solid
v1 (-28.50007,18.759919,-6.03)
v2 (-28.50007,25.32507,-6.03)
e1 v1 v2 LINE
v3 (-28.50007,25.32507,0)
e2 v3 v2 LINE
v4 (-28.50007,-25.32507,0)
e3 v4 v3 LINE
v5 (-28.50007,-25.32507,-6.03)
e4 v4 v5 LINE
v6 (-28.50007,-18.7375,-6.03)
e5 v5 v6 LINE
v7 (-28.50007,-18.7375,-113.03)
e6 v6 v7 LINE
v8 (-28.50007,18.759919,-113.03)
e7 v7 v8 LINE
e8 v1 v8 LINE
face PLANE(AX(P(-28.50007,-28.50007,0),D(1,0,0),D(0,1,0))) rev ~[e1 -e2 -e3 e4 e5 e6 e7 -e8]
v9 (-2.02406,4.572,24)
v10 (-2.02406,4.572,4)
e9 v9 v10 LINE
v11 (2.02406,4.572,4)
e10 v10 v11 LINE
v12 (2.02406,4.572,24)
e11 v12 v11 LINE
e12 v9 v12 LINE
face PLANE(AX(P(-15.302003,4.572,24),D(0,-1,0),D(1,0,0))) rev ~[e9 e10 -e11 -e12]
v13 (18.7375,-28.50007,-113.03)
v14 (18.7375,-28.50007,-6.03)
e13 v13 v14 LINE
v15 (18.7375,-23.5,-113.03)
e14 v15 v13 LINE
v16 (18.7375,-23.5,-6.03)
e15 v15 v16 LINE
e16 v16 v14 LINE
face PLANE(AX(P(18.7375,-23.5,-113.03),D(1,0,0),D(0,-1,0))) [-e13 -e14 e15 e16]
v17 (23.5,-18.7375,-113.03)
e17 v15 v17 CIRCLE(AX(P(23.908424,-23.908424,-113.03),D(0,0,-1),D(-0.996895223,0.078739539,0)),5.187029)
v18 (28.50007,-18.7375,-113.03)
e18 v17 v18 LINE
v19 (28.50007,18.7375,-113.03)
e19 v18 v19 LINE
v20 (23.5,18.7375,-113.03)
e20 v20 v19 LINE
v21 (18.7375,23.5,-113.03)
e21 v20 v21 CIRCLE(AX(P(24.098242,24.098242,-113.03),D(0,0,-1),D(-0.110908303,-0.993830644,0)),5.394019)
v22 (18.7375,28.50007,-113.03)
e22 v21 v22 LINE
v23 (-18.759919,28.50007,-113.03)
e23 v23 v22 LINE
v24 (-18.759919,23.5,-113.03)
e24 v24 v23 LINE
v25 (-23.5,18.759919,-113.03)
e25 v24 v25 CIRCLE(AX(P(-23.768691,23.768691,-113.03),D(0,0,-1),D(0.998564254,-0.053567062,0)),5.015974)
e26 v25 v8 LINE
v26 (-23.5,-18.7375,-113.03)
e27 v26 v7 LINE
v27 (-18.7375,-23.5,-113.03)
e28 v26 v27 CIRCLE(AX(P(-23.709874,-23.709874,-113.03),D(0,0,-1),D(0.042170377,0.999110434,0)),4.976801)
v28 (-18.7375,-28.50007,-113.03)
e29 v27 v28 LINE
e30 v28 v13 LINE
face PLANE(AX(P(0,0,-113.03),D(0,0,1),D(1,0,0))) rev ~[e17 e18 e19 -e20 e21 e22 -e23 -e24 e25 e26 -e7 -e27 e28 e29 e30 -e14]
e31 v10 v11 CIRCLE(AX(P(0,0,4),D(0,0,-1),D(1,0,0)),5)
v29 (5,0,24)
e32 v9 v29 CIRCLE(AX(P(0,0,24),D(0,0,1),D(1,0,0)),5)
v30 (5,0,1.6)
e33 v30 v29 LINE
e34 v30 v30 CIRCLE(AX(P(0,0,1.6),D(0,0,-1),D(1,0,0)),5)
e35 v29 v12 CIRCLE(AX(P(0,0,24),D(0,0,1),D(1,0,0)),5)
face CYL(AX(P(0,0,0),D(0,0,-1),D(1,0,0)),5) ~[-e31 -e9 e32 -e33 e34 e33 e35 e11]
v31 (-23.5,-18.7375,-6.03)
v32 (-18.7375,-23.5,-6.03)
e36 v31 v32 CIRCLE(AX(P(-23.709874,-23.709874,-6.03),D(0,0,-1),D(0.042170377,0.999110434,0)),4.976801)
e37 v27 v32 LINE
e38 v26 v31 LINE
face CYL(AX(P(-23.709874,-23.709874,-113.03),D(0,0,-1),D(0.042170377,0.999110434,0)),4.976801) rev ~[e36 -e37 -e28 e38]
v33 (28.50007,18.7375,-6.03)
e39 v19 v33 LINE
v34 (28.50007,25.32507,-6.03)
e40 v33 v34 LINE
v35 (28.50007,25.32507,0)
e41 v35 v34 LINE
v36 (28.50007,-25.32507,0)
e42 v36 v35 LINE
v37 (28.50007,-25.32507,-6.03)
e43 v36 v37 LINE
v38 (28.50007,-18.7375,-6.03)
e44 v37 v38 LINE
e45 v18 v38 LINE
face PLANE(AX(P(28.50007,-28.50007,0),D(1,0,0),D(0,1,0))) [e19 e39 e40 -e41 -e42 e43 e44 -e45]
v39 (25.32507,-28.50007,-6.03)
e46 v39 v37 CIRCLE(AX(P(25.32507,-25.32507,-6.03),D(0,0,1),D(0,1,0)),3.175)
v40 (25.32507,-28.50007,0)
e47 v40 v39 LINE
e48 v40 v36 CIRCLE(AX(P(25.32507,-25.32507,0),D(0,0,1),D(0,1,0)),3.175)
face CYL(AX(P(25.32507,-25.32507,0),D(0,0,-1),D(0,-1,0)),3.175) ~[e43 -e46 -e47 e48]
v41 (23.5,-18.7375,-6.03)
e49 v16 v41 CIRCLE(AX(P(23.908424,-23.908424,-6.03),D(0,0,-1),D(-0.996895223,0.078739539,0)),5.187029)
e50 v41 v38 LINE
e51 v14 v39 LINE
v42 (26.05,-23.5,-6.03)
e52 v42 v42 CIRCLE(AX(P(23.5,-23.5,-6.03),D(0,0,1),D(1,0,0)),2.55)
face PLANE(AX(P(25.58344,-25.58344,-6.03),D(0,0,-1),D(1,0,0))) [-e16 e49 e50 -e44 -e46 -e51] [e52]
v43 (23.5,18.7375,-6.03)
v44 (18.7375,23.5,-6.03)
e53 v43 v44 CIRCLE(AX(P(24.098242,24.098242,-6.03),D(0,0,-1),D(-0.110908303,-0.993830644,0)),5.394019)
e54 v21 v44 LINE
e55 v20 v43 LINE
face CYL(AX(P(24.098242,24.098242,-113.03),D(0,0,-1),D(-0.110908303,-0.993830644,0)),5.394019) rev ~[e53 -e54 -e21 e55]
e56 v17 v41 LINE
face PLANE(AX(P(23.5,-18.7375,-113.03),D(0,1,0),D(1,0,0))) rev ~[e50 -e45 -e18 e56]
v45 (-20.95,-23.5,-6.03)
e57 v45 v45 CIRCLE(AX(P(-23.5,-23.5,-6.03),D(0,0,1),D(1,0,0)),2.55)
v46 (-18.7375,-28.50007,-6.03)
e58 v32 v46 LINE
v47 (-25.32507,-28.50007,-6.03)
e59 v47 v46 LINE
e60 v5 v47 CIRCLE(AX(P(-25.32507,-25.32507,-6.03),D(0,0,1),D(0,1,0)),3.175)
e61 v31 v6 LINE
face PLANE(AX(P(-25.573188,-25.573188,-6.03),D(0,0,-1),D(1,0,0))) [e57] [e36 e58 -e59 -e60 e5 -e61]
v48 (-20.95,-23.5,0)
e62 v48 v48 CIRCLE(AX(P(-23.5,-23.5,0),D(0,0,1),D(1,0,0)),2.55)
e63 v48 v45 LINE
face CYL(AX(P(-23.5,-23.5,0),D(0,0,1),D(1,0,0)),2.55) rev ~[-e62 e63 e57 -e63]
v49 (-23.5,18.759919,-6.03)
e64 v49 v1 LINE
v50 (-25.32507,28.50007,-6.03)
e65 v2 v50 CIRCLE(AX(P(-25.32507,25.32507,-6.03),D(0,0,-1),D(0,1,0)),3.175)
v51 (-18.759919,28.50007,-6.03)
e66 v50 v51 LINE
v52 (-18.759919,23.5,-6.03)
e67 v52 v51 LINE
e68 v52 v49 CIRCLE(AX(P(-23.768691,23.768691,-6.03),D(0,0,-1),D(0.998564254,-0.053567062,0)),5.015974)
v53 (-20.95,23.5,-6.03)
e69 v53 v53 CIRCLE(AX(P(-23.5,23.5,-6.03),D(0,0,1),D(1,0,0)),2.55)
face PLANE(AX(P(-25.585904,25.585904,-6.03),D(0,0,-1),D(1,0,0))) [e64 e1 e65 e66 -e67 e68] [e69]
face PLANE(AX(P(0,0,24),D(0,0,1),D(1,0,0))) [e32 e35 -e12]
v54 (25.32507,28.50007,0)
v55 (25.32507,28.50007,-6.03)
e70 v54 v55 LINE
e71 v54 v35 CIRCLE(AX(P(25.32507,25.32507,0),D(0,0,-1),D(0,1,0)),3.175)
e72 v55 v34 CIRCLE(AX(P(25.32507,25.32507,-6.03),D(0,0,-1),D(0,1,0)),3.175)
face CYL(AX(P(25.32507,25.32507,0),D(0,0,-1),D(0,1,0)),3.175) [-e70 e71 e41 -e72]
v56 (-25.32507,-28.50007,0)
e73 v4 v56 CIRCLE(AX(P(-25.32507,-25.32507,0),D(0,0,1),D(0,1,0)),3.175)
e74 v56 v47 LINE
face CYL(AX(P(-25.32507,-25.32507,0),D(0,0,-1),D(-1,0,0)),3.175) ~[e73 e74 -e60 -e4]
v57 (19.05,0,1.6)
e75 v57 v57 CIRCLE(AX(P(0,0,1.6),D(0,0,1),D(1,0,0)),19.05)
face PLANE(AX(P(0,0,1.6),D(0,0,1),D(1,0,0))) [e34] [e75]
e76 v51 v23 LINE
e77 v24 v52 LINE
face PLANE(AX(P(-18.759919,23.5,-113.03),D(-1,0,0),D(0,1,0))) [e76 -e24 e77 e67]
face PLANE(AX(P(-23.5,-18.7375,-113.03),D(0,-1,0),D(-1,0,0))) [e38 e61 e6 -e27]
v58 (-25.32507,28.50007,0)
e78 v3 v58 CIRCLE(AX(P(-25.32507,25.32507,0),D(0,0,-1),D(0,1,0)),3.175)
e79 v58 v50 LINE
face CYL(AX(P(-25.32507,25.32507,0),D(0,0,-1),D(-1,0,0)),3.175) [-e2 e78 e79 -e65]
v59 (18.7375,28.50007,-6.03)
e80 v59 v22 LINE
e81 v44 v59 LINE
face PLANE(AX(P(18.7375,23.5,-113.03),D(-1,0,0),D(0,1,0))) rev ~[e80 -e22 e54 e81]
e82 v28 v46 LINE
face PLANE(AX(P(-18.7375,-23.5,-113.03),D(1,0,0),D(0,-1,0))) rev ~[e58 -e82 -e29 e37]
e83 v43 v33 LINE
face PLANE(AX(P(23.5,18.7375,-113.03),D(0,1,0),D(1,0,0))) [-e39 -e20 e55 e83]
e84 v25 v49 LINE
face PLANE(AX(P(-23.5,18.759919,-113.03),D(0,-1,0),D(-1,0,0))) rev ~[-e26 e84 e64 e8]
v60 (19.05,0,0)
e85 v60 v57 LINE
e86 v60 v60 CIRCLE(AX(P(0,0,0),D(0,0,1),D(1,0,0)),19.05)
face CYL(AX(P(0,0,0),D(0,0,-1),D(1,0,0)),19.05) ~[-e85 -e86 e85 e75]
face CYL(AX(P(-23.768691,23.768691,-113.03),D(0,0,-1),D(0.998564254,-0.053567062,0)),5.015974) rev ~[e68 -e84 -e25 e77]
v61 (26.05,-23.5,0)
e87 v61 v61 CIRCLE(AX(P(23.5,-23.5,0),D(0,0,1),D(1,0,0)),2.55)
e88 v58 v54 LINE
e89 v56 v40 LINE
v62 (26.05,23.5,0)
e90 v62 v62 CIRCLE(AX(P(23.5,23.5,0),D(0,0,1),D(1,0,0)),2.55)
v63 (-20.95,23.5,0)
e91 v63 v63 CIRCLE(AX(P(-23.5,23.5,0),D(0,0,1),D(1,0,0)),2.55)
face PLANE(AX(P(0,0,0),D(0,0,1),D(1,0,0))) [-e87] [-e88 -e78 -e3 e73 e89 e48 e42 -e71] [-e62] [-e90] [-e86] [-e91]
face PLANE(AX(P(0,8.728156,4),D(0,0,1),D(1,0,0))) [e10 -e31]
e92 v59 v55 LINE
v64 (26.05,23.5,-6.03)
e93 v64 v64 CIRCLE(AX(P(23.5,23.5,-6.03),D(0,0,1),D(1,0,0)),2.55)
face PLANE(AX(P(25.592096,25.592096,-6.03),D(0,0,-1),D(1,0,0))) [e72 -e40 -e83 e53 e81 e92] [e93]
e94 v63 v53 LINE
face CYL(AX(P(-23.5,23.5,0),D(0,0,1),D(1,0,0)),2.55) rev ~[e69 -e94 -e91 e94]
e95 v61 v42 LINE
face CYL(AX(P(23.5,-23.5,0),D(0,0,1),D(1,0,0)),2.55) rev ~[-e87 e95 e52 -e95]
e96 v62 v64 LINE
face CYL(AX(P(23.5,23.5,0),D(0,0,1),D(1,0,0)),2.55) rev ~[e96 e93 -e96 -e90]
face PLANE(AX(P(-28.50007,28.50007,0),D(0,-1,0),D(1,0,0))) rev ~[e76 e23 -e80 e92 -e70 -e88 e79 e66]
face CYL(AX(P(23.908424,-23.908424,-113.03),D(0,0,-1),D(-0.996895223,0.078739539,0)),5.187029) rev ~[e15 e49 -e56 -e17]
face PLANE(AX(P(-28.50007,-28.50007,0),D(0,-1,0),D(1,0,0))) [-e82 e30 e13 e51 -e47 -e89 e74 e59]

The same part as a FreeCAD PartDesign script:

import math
import FreeCAD as App
import Part
import Sketcher


def edges_at(feature, points):
    """Names of the edges that pass closest to the given points."""
    edges = feature.Shape.Edges
    near = lambda p: min(range(len(edges)), key=lambda i: edges[i].distToShape(Part.Vertex(*p))[0])
    return sorted({f"Edge{near(p) + 1}" for p in points})


def add_polygon(sketch, points):
    """Adds a closed chain of lines whose ends are joined by coincident constraints."""
    first, n = sketch.GeometryCount, len(points)
    for a, b in zip(points, points[1:] + points[:1]):
        sketch.addGeometry(Part.LineSegment(App.Vector(*a, 0), App.Vector(*b, 0)), False)
    for i in range(n):
        sketch.addConstraint(Sketcher.Constraint("Coincident", first + i, 2, first + (i + 1) % n, 1))

doc = App.newDocument("Part")
body = doc.addObject("PartDesign::Body", "Body")

# Sketch on XY plane
sketch1 = body.newObject("Sketcher::SketchObject", "Sketch")
sketch1.AttachmentSupport = (doc.getObject("XY_Plane"), [""])
sketch1.MapMode = "FlatFace"
add_polygon(sketch1, [(-28.5, 28.5), (-28.5, -28.5), (28.5, -28.5), (28.5, 28.5)])  # lines 0-3
sketch1.addGeometry(Part.Circle(App.Vector(-23.5, -23.5, 0), App.Vector(0, 0, 1), 2.5), False)  # 4
sketch1.addGeometry(Part.Circle(App.Vector(23.5, -23.5, 0), App.Vector(0, 0, 1), 2.5), False)  # 5
sketch1.addGeometry(Part.Circle(App.Vector(-23.5, 23.5, 0), App.Vector(0, 0, 1), 2.5), False)  # 6
sketch1.addGeometry(Part.Circle(App.Vector(23.5, 23.5, 0), App.Vector(0, 0, 1), 2.5), False)  # 7
sketch1.addConstraint([
    Sketcher.Constraint("Vertical", 0),
    Sketcher.Constraint("Horizontal", 1),
    Sketcher.Constraint("Vertical", 2),
    Sketcher.Constraint("Horizontal", 3),
    Sketcher.Constraint("Equal", 4, 5),
    Sketcher.Constraint("Equal", 5, 6),
    Sketcher.Constraint("Equal", 6, 7),
    Sketcher.Constraint("Symmetric", 5, 3, 6, 3, -1, 1),
    Sketcher.Constraint("Symmetric", 4, 3, 7, 3, -1, 1),
    Sketcher.Constraint("Symmetric", 0, 2, 2, 2, -1, 1),
    Sketcher.Constraint("Symmetric", 4, 3, 5, 3, -2),
    Sketcher.Constraint("Equal", 3, 0),
    Sketcher.Constraint("Diameter", 4, 5.1),
    Sketcher.Constraint("DistanceX", 4, 3, 5, 3, 47.0),
    Sketcher.Constraint("DistanceY", 4, 3, 6, 3, 47.0),
    Sketcher.Constraint("DistanceX", 1, 1, 1, 2, 57.00014),
])
pad1 = body.newObject("PartDesign::Pad", "Pad")
pad1.Profile = sketch1
pad1.Length = 113.03
pad1.Reversed = True

# Sketch on XY plane
sketch2 = body.newObject("Sketcher::SketchObject", "Sketch001")
sketch2.AttachmentSupport = (doc.getObject("XY_Plane"), [""])
sketch2.MapMode = "FlatFace"
sketch2.AttachmentOffset = App.Placement(App.Vector(0, 0, -113.03), App.Rotation())
sketch2.addGeometry([
    Part.LineSegment(App.Vector(-18.7, -23.5, 0), App.Vector(-18.7, -31.8, 0)),  # 0
    Part.LineSegment(App.Vector(-18.7, -31.8, 0), App.Vector(-31.8, -31.8, 0)),  # 1
    Part.LineSegment(App.Vector(-31.8, -31.8, 0), App.Vector(-31.8, -18.7, 0)),  # 2
    Part.LineSegment(App.Vector(-31.8, -18.7, 0), App.Vector(-23.5, -18.7, 0)),  # 3
    Part.ArcOfCircle(Part.Circle(App.Vector(-23.7, -23.7, 0), App.Vector(0, 0, 1), 5), math.radians(2), math.radians(88)),  # 4
    Part.LineSegment(App.Vector(23.5, -18.7, 0), App.Vector(31.8, -18.7, 0)),  # 5
    Part.LineSegment(App.Vector(31.8, -18.7, 0), App.Vector(31.8, -31.8, 0)),  # 6
    Part.LineSegment(App.Vector(31.8, -31.8, 0), App.Vector(18.7, -31.8, 0)),  # 7
    Part.LineSegment(App.Vector(18.7, -31.8, 0), App.Vector(18.7, -23.5, 0)),  # 8
    Part.ArcOfCircle(Part.Circle(App.Vector(23.9, -23.9, 0), App.Vector(0, 0, 1), 5.2), math.radians(95), math.radians(175)),  # 9
    Part.LineSegment(App.Vector(18.7, 23.5, 0), App.Vector(18.7, 31.8, 0)),  # 10
    Part.LineSegment(App.Vector(18.7, 31.8, 0), App.Vector(31.8, 31.8, 0)),  # 11
    Part.LineSegment(App.Vector(31.8, 31.8, 0), App.Vector(31.8, 18.7, 0)),  # 12
    Part.LineSegment(App.Vector(31.8, 18.7, 0), App.Vector(23.5, 18.7, 0)),  # 13
    Part.ArcOfCircle(Part.Circle(App.Vector(24.1, 24.1, 0), App.Vector(0, 0, 1), 5.4), math.radians(-174), math.radians(-96)),  # 14
    Part.LineSegment(App.Vector(-23.5, 18.8, 0), App.Vector(-31.8, 18.8, 0)),  # 15
    Part.LineSegment(App.Vector(-31.8, 18.8, 0), App.Vector(-31.8, 31.8, 0)),  # 16
    Part.LineSegment(App.Vector(-31.8, 31.8, 0), App.Vector(-18.8, 31.8, 0)),  # 17
    Part.LineSegment(App.Vector(-18.8, 31.8, 0), App.Vector(-18.8, 23.5, 0)),  # 18
    Part.ArcOfCircle(Part.Circle(App.Vector(-23.8, 23.8, 0), App.Vector(0, 0, 1), 5), math.radians(-87), math.radians(-3)),  # 19
], False)
sketch2.addConstraint([
    Sketcher.Constraint("Coincident", 0, 2, 1, 1),
    Sketcher.Constraint("Coincident", 1, 2, 2, 1),
    Sketcher.Constraint("Coincident", 2, 2, 3, 1),
    Sketcher.Constraint("Coincident", 3, 2, 4, 2),
    Sketcher.Constraint("Coincident", 4, 1, 0, 1),
    Sketcher.Constraint("Coincident", 5, 2, 6, 1),
    Sketcher.Constraint("Coincident", 6, 2, 7, 1),
    Sketcher.Constraint("Coincident", 7, 2, 8, 1),
    Sketcher.Constraint("Coincident", 8, 2, 9, 2),
    Sketcher.Constraint("Coincident", 9, 1, 5, 1),
    Sketcher.Constraint("Coincident", 10, 2, 11, 1),
    Sketcher.Constraint("Coincident", 11, 2, 12, 1),
    Sketcher.Constraint("Coincident", 12, 2, 13, 1),
    Sketcher.Constraint("Coincident", 13, 2, 14, 2),
    Sketcher.Constraint("Coincident", 14, 1, 10, 1),
    Sketcher.Constraint("Coincident", 15, 2, 16, 1),
    Sketcher.Constraint("Coincident", 16, 2, 17, 1),
    Sketcher.Constraint("Coincident", 17, 2, 18, 1),
    Sketcher.Constraint("Coincident", 18, 2, 19, 2),
    Sketcher.Constraint("Coincident", 19, 1, 15, 1),
    Sketcher.Constraint("Vertical", 0),
    Sketcher.Constraint("Horizontal", 1),
    Sketcher.Constraint("Vertical", 2),
    Sketcher.Constraint("Horizontal", 3),
    Sketcher.Constraint("Horizontal", 5),
    Sketcher.Constraint("Vertical", 6),
    Sketcher.Constraint("Horizontal", 7),
    Sketcher.Constraint("Vertical", 8),
    Sketcher.Constraint("Vertical", 10),
    Sketcher.Constraint("Horizontal", 11),
    Sketcher.Constraint("Vertical", 12),
    Sketcher.Constraint("Horizontal", 13),
    Sketcher.Constraint("Horizontal", 15),
    Sketcher.Constraint("Vertical", 16),
    Sketcher.Constraint("Horizontal", 17),
    Sketcher.Constraint("Vertical", 18),
    Sketcher.Constraint("Symmetric", 0, 2, 10, 2, -1, 1),
    Sketcher.Constraint("Symmetric", 2, 2, 12, 2, -1, 1),
    Sketcher.Constraint("Symmetric", 6, 2, 16, 2, -1, 1),
    Sketcher.Constraint("Symmetric", 2, 2, 5, 2, -2),
    Sketcher.Constraint("Symmetric", 0, 2, 7, 2, -2),
    Sketcher.Constraint("Horizontal", 4, 1, 8, 2),
    Sketcher.Constraint("Horizontal", 14, 1, 18, 2),
    Sketcher.Constraint("Vertical", 9, 1, 13, 2),
    Sketcher.Constraint("Vertical", 3, 2, 19, 1),
    Sketcher.Constraint("Equal", 3, 5),
    Sketcher.Constraint("Equal", 15, 0),
    Sketcher.Constraint("Equal", 11, 2),
    Sketcher.Constraint("Equal", 8, 10),
    Sketcher.Constraint("Equal", 17, 16),
    Sketcher.Constraint("DistanceX", 3, 1, 3, 2, 8.25),
    Sketcher.Constraint("DistanceX", 3, 2, -1, 1, 23.5),
    Sketcher.Constraint("DistanceY", 4, 1, -1, 1, 23.5),
    Sketcher.Constraint("Radius", 4, 4.976801),
    Sketcher.Constraint("Radius", 9, 5.187029),
    Sketcher.Constraint("Radius", 14, 5.394019),
    Sketcher.Constraint("DistanceX", 1, 2, 1, 1, 13.0125),
    Sketcher.Constraint("Radius", 19, 5.015974),
    Sketcher.Constraint("DistanceX", 17, 1, 17, 2, 12.990081),
])
pocket1 = body.newObject("PartDesign::Pocket", "Pocket")
pocket1.Profile = sketch2
pocket1.Length = 107
pocket1.Reversed = True

# Sketch on XY plane
sketch3 = body.newObject("Sketcher::SketchObject", "Sketch002")
sketch3.AttachmentSupport = (doc.getObject("XY_Plane"), [""])
sketch3.MapMode = "FlatFace"
sketch3.addGeometry(Part.Circle(App.Vector(0, 0, 0), App.Vector(0, 0, 1), 19), False)
sketch3.addConstraint([
    Sketcher.Constraint("Coincident", 0, 3, -1, 1),
    Sketcher.Constraint("Diameter", 0, 38.1),
])
pad2 = body.newObject("PartDesign::Pad", "Pad001")
pad2.Profile = sketch3
pad2.Length = 1.6

# Sketch on XY plane
sketch4 = body.newObject("Sketcher::SketchObject", "Sketch003")
sketch4.AttachmentSupport = (doc.getObject("XY_Plane"), [""])
sketch4.MapMode = "FlatFace"
sketch4.addGeometry(Part.Circle(App.Vector(0, 0, 0), App.Vector(0, 0, 1), 5), False)
sketch4.addConstraint([
    Sketcher.Constraint("Coincident", 0, 3, -1, 1),
    Sketcher.Constraint("Diameter", 0, 10.0),
])
pad3 = body.newObject("PartDesign::Pad", "Pad002")
pad3.Profile = sketch4
pad3.Length = 24
doc.recompute()

fillet = body.newObject("PartDesign::Fillet", "Fillet")
fillet.Base = (pad3, edges_at(pad3, [
    (28.5, 28.5, -3.015),
    (28.5, -28.5, -3.015),
    (-28.5, 28.5, -3.015),
    (-28.5, -28.5, -3.015),
]))
fillet.Radius = 3.175

# Sketch on XY plane
sketch5 = body.newObject("Sketcher::SketchObject", "Sketch004")
sketch5.AttachmentSupport = (doc.getObject("XY_Plane"), [""])
sketch5.MapMode = "FlatFace"
sketch5.AttachmentOffset = App.Placement(App.Vector(0, 0, 24), App.Rotation())
add_polygon(sketch5, [(-15, 13), (-15, 5), (15, 5), (15, 13)])  # lines 0-3
sketch5.addConstraint([
    Sketcher.Constraint("Vertical", 0),
    Sketcher.Constraint("Horizontal", 1),
    Sketcher.Constraint("Vertical", 2),
    Sketcher.Constraint("Horizontal", 3),
    Sketcher.Constraint("DistanceY", -1, 1, 0, 2, 4.572),
    Sketcher.Constraint("DistanceX", 1, 1, 1, 2, 30.604006),
    Sketcher.Constraint("DistanceY", 0, 2, 0, 1, 8.312313),
    Sketcher.Constraint("DistanceX", 0, 2, -1, 1, 15.302003),
])
pocket2 = body.newObject("PartDesign::Pocket", "Pocket001")
pocket2.Profile = sketch5
pocket2.Length = 20

doc.recompute()
